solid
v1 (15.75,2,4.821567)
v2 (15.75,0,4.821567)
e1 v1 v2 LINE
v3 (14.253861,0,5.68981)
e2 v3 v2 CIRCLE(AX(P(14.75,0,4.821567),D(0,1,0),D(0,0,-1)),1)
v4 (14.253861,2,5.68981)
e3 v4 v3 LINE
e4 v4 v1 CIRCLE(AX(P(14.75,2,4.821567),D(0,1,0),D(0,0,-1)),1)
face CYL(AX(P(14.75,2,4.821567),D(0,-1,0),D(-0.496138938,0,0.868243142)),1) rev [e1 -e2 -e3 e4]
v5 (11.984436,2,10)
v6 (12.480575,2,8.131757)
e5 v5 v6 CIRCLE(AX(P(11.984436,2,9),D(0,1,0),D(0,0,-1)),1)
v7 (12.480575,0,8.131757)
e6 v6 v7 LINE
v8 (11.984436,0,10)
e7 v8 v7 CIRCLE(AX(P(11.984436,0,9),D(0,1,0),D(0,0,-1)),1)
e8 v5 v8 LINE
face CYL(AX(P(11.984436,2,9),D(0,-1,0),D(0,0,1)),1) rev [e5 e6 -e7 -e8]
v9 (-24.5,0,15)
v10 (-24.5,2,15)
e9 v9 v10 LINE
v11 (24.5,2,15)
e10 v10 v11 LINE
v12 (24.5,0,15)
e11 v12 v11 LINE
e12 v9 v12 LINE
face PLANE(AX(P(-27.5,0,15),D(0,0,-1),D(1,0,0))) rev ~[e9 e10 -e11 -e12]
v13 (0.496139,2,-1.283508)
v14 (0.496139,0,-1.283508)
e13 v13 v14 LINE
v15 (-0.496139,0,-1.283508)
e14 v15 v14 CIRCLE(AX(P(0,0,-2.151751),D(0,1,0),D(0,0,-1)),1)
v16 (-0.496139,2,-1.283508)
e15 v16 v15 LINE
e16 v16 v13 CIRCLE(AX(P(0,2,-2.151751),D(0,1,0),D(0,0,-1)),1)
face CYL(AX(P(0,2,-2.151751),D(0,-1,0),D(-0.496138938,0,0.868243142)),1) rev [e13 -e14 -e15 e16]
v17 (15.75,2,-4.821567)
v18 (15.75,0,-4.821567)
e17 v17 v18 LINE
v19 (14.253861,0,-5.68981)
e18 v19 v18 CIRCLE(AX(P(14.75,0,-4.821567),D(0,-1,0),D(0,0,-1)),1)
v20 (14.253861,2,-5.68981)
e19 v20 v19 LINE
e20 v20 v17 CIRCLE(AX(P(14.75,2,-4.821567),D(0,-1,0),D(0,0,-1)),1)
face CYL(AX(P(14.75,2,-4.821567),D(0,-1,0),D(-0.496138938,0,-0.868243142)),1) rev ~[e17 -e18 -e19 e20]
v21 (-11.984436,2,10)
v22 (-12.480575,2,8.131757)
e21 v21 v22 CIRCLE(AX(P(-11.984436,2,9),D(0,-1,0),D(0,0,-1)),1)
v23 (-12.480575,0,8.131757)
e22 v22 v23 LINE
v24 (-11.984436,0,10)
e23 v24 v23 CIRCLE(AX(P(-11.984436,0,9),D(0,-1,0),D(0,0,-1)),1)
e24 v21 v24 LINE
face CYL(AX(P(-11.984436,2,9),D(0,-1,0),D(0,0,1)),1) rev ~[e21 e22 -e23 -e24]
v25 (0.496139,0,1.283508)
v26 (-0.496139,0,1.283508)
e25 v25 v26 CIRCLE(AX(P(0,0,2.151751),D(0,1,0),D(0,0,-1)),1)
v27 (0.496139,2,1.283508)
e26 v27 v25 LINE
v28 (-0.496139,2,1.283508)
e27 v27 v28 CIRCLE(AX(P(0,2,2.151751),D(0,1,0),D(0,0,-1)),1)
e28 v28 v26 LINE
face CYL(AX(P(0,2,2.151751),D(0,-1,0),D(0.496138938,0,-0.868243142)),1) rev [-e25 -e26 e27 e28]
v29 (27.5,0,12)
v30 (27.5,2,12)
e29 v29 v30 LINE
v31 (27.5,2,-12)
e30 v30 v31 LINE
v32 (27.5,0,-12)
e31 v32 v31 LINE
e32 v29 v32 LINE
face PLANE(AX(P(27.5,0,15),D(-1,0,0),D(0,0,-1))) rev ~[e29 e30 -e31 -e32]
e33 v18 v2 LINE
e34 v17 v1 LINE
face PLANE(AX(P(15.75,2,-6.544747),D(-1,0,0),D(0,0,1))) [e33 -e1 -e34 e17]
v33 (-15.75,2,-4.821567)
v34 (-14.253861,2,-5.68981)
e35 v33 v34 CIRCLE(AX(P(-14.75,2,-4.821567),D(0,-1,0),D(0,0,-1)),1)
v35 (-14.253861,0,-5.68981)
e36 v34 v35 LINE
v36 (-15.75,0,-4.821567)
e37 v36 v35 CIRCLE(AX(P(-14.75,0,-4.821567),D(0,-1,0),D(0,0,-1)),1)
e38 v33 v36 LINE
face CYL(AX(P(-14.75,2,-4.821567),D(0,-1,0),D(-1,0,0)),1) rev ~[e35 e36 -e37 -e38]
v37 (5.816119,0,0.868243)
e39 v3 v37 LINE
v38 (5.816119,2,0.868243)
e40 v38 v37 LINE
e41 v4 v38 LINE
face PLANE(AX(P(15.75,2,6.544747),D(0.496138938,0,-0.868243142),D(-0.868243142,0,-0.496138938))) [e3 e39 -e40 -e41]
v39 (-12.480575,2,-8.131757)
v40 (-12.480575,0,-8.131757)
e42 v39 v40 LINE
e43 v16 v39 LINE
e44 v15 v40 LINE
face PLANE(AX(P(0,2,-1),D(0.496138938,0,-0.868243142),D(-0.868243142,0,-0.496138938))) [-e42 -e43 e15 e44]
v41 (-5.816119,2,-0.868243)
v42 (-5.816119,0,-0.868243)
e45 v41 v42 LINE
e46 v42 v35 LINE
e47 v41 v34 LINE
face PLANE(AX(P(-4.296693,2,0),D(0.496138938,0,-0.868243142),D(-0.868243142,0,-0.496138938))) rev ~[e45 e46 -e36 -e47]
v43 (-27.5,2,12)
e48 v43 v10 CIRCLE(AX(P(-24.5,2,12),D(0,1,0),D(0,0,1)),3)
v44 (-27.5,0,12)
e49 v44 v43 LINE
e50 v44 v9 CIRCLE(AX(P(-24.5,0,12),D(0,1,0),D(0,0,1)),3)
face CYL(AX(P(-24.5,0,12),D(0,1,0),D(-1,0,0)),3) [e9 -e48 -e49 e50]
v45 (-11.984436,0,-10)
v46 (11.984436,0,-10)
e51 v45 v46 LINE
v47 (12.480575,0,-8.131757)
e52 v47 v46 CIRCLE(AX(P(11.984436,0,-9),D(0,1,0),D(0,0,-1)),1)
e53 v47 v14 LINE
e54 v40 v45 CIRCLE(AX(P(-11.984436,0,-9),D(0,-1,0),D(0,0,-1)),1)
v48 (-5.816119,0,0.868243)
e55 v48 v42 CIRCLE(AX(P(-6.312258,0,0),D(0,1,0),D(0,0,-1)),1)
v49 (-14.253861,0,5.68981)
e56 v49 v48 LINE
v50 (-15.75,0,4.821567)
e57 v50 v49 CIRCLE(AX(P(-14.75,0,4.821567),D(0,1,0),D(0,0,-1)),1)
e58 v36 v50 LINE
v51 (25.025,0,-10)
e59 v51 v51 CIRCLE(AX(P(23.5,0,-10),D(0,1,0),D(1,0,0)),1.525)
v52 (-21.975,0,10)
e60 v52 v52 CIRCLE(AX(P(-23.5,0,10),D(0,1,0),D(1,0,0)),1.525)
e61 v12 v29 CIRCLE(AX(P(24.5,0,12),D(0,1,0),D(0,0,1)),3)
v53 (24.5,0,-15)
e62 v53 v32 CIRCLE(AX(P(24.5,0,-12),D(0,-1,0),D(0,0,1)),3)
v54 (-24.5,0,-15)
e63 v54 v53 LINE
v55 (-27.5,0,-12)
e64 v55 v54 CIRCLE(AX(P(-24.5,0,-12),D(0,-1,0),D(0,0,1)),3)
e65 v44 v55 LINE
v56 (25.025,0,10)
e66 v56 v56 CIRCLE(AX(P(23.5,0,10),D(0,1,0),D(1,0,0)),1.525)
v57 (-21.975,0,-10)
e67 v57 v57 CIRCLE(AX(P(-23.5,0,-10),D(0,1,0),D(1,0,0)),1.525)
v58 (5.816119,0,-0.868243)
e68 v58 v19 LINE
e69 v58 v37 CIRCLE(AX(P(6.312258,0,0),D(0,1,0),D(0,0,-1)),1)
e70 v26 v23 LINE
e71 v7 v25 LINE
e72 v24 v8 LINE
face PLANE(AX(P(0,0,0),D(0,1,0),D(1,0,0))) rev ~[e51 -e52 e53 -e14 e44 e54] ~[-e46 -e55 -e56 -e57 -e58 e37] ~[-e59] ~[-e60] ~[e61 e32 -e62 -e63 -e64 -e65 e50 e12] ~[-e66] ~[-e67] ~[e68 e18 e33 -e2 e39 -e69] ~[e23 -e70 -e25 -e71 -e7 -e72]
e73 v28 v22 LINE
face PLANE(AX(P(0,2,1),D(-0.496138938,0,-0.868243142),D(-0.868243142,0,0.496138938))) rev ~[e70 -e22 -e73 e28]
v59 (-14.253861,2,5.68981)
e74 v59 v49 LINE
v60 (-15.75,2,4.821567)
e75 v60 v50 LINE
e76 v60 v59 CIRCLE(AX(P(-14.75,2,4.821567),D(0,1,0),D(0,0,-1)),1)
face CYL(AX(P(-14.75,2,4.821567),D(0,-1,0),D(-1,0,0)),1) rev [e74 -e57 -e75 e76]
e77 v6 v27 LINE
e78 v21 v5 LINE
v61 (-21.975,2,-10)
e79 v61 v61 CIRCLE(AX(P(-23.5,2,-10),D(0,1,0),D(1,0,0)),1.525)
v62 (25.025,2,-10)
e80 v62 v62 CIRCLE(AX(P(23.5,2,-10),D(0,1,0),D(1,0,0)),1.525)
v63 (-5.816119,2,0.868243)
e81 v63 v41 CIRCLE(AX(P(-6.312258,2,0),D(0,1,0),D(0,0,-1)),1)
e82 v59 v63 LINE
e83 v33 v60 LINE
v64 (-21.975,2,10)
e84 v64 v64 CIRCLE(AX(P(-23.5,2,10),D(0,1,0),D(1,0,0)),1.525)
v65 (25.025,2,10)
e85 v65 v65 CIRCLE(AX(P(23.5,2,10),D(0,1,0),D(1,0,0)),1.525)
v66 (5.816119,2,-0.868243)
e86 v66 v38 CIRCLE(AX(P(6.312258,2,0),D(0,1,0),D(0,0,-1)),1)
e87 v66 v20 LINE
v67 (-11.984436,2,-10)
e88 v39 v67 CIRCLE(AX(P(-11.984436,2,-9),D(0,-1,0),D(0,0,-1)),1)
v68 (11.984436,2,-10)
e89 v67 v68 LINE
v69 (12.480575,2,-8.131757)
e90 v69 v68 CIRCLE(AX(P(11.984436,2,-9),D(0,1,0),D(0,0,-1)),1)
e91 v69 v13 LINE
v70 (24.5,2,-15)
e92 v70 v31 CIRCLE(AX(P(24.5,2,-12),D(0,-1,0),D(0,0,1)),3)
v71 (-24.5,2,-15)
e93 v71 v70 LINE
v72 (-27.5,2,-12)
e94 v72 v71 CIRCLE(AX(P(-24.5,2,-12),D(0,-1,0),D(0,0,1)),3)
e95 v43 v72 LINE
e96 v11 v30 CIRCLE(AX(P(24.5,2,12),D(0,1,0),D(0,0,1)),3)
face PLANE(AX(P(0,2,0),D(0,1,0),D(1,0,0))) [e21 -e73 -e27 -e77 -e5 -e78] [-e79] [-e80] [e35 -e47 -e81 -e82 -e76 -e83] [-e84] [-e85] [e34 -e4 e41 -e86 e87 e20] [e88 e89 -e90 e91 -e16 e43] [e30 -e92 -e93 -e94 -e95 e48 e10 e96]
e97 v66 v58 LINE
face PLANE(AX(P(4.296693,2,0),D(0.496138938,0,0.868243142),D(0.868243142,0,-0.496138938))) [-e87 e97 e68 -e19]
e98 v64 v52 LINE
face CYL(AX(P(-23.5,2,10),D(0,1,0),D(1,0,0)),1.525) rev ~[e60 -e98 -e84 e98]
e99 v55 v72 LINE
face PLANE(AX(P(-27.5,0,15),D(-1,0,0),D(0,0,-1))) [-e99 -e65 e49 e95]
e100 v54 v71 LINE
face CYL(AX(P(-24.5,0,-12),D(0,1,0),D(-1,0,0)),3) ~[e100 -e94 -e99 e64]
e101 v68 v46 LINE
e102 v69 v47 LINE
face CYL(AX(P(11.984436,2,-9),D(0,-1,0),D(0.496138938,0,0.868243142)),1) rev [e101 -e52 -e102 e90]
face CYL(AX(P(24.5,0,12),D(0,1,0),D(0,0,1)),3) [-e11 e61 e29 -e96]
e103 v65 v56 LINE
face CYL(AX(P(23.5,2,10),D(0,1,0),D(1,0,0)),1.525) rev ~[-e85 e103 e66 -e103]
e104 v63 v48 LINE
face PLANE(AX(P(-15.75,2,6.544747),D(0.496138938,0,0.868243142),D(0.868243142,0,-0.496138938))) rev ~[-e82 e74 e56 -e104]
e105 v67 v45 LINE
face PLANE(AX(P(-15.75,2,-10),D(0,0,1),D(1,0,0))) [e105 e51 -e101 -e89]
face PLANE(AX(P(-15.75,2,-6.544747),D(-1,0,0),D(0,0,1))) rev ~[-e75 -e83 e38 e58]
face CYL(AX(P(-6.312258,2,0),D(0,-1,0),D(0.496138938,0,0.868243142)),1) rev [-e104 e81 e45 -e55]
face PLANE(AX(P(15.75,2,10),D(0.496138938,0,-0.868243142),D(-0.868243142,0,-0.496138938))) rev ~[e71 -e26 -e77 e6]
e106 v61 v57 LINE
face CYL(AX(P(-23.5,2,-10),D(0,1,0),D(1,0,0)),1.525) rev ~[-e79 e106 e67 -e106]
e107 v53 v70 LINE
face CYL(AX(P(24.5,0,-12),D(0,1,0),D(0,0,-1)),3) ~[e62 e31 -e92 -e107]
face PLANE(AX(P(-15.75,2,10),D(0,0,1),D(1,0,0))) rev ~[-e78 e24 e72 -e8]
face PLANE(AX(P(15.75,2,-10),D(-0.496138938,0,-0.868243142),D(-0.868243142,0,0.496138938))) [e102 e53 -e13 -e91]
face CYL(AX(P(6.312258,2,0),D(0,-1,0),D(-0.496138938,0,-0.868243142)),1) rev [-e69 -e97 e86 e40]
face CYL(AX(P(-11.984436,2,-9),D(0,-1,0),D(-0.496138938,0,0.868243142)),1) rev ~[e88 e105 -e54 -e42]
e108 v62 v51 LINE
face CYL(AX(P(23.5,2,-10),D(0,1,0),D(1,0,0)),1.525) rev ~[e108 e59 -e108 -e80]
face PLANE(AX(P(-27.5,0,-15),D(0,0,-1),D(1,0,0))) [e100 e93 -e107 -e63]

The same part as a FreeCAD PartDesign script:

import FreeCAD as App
import Part
import Sketcher
Q = App.Units.Quantity


def edges_at(feature, points):
    """Names of the edges that pass closest to the given points."""
    edges = feature.Shape.Edges
    near = lambda p: min(range(len(edges)), key=lambda i: edges[i].distToShape(Part.Vertex(*p))[0])
    return sorted({f"Edge{near(p) + 1}" for p in points})


def add_polygon(sketch, points):
    """Adds a closed chain of lines whose ends are joined by coincident constraints."""
    first, n = sketch.GeometryCount, len(points)
    for a, b in zip(points, points[1:] + points[:1]):
        sketch.addGeometry(Part.LineSegment(App.Vector(*a, 0), App.Vector(*b, 0)), False)
    for i in range(n):
        sketch.addConstraint(Sketcher.Constraint("Coincident", first + i, 2, first + (i + 1) % n, 1))

doc = App.newDocument("Part")
body = doc.addObject("PartDesign::Body", "Body")

# Sketch on XZ plane
sketch1 = body.newObject("Sketcher::SketchObject", "Sketch")
sketch1.AttachmentSupport = (doc.getObject("XZ_Plane"), [""])
sketch1.MapMode = "FlatFace"
add_polygon(sketch1, [(-28, -15), (-28, 15), (28, 15), (28, -15)])  # lines 0-3
sketch1.addConstraint([
    Sketcher.Constraint("Vertical", 0),
    Sketcher.Constraint("Horizontal", 1),
    Sketcher.Constraint("Vertical", 2),
    Sketcher.Constraint("Horizontal", 3),
    Sketcher.Constraint("Symmetric", 0, 2, 2, 2, -1, 1),
    Sketcher.Constraint("DistanceX", 1, 1, 1, 2, Q("55 mm")),
    Sketcher.Constraint("DistanceY", 0, 1, 0, 2, Q("30 mm")),
])
pad1 = body.newObject("PartDesign::Pad", "Pad")
pad1.Profile = sketch1
pad1.Length = 2
pad1.Reversed = True

# Sketch on XZ plane
sketch2 = body.newObject("Sketcher::SketchObject", "Sketch001")
sketch2.AttachmentSupport = (doc.getObject("XZ_Plane"), [""])
sketch2.MapMode = "FlatFace"
sketch2.AttachmentOffset = App.Placement(App.Vector(0, 0, -2), App.Rotation())
sketch2.addGeometry([
    Part.Circle(App.Vector(-23.5, -10, 0), App.Vector(0, 0, 1), 1.5),
    Part.Circle(App.Vector(-23.5, 10, 0), App.Vector(0, 0, 1), 1.5),
    Part.Circle(App.Vector(23.5, 10, 0), App.Vector(0, 0, 1), 1.5),
    Part.Circle(App.Vector(23.5, -10, 0), App.Vector(0, 0, 1), 1.5),
], False)
sketch2.addConstraint([
    Sketcher.Constraint("Equal", 0, 1),
    Sketcher.Constraint("Equal", 1, 2),
    Sketcher.Constraint("Equal", 2, 3),
    Sketcher.Constraint("Symmetric", 0, 3, 2, 3, -1, 1),
    Sketcher.Constraint("Symmetric", 1, 3, 3, 3, -1, 1),
    Sketcher.Constraint("Symmetric", 1, 3, 2, 3, -2),
    Sketcher.Constraint("Diameter", 0, Q("3.05 mm")),
    Sketcher.Constraint("DistanceY", 0, 3, -1, 1, Q("10 mm")),
    Sketcher.Constraint("DistanceX", 1, 3, 2, 3, Q("47 mm")),
])
pocket1 = body.newObject("PartDesign::Pocket", "Pocket")
pocket1.Profile = sketch2
pocket1.Length = 2
pocket1.Reversed = True
doc.recompute()

fillet = body.newObject("PartDesign::Fillet", "Fillet")
fillet.Base = (pocket1, edges_at(pocket1, [
    (27.5, 1, 15),
    (-27.5, 1, 15),
    (-27.5, 1, -15),
    (27.5, 1, -15),
]))
fillet.Radius = 3

# Sketch on XZ plane
sketch3 = body.newObject("Sketcher::SketchObject", "Sketch002")
sketch3.AttachmentSupport = (doc.getObject("XZ_Plane"), [""])
sketch3.MapMode = "FlatFace"
sketch3.AttachmentOffset = App.Placement(App.Vector(0, 0, -2), App.Rotation())
add_polygon(sketch3, [(16, -10), (-16, -10), (0, -1)])  # lines 0-2
add_polygon(sketch3, [(-16, -7), (-16, 7), (-4, 0)])  # lines 3-5
add_polygon(sketch3, [(-16, 10), (16, 10), (0, 1)])  # lines 6-8
add_polygon(sketch3, [(16, 7), (16, -7), (4, 0)])  # lines 9-11
sketch3.addConstraint([
    Sketcher.Constraint("Horizontal", 0),
    Sketcher.Constraint("Vertical", 3),
    Sketcher.Constraint("Horizontal", 6),
    Sketcher.Constraint("Vertical", 9),
    Sketcher.Constraint("Symmetric", 0, 2, 6, 2, -1, 1),
    Sketcher.Constraint("Symmetric", 1, 2, 7, 2, -1, 1),
    Sketcher.Constraint("Symmetric", 3, 2, 9, 2, -1, 1),
    Sketcher.Constraint("Symmetric", 4, 2, 10, 2, -1, 1),
    Sketcher.Constraint("PointOnObject", 1, 2, -2),
    Sketcher.Constraint("PointOnObject", 4, 2, -1),
    Sketcher.Constraint("Parallel", 2, 4),
    Sketcher.Constraint("Parallel", 1, 5),
    Sketcher.Constraint("Parallel", 4, 8),
    Sketcher.Constraint("Parallel", 7, 11),
    Sketcher.Constraint("Horizontal", 5, 2, 9, 2),
    Sketcher.Constraint("Vertical", 0, 2, 3, 2),
    Sketcher.Constraint("DistanceX", 0, 2, 0, 1, Q("31.5 mm")),
    Sketcher.Constraint("DistanceY", 0, 2, -1, 1, Q("10 mm")),
    Sketcher.Constraint("DistanceY", 1, 2, -1, 1, Q("1 mm")),
    Sketcher.Constraint("Distance", 4, Q("13.191359 mm")),
])
pocket2 = body.newObject("PartDesign::Pocket", "Pocket001")
pocket2.Profile = sketch3
pocket2.Length = 2
pocket2.Reversed = True
doc.recompute()

fillet2 = body.newObject("PartDesign::Fillet", "Fillet001")
fillet2.Base = (pocket2, edges_at(pocket2, [
    (15.75, 1, 10),
    (0, 1, 1),
    (-15.75, 1, 10),
    (-15.75, 1, 6.545),
    (-4.297, 1, 0),
    (-15.75, 1, -6.545),
    (15.75, 1, 6.545),
    (15.75, 1, -6.545),
    (4.297, 1, 0),
    (15.75, 1, -10),
    (-15.75, 1, -10),
    (0, 1, -1),
]))
fillet2.Radius = 1

doc.recompute()
